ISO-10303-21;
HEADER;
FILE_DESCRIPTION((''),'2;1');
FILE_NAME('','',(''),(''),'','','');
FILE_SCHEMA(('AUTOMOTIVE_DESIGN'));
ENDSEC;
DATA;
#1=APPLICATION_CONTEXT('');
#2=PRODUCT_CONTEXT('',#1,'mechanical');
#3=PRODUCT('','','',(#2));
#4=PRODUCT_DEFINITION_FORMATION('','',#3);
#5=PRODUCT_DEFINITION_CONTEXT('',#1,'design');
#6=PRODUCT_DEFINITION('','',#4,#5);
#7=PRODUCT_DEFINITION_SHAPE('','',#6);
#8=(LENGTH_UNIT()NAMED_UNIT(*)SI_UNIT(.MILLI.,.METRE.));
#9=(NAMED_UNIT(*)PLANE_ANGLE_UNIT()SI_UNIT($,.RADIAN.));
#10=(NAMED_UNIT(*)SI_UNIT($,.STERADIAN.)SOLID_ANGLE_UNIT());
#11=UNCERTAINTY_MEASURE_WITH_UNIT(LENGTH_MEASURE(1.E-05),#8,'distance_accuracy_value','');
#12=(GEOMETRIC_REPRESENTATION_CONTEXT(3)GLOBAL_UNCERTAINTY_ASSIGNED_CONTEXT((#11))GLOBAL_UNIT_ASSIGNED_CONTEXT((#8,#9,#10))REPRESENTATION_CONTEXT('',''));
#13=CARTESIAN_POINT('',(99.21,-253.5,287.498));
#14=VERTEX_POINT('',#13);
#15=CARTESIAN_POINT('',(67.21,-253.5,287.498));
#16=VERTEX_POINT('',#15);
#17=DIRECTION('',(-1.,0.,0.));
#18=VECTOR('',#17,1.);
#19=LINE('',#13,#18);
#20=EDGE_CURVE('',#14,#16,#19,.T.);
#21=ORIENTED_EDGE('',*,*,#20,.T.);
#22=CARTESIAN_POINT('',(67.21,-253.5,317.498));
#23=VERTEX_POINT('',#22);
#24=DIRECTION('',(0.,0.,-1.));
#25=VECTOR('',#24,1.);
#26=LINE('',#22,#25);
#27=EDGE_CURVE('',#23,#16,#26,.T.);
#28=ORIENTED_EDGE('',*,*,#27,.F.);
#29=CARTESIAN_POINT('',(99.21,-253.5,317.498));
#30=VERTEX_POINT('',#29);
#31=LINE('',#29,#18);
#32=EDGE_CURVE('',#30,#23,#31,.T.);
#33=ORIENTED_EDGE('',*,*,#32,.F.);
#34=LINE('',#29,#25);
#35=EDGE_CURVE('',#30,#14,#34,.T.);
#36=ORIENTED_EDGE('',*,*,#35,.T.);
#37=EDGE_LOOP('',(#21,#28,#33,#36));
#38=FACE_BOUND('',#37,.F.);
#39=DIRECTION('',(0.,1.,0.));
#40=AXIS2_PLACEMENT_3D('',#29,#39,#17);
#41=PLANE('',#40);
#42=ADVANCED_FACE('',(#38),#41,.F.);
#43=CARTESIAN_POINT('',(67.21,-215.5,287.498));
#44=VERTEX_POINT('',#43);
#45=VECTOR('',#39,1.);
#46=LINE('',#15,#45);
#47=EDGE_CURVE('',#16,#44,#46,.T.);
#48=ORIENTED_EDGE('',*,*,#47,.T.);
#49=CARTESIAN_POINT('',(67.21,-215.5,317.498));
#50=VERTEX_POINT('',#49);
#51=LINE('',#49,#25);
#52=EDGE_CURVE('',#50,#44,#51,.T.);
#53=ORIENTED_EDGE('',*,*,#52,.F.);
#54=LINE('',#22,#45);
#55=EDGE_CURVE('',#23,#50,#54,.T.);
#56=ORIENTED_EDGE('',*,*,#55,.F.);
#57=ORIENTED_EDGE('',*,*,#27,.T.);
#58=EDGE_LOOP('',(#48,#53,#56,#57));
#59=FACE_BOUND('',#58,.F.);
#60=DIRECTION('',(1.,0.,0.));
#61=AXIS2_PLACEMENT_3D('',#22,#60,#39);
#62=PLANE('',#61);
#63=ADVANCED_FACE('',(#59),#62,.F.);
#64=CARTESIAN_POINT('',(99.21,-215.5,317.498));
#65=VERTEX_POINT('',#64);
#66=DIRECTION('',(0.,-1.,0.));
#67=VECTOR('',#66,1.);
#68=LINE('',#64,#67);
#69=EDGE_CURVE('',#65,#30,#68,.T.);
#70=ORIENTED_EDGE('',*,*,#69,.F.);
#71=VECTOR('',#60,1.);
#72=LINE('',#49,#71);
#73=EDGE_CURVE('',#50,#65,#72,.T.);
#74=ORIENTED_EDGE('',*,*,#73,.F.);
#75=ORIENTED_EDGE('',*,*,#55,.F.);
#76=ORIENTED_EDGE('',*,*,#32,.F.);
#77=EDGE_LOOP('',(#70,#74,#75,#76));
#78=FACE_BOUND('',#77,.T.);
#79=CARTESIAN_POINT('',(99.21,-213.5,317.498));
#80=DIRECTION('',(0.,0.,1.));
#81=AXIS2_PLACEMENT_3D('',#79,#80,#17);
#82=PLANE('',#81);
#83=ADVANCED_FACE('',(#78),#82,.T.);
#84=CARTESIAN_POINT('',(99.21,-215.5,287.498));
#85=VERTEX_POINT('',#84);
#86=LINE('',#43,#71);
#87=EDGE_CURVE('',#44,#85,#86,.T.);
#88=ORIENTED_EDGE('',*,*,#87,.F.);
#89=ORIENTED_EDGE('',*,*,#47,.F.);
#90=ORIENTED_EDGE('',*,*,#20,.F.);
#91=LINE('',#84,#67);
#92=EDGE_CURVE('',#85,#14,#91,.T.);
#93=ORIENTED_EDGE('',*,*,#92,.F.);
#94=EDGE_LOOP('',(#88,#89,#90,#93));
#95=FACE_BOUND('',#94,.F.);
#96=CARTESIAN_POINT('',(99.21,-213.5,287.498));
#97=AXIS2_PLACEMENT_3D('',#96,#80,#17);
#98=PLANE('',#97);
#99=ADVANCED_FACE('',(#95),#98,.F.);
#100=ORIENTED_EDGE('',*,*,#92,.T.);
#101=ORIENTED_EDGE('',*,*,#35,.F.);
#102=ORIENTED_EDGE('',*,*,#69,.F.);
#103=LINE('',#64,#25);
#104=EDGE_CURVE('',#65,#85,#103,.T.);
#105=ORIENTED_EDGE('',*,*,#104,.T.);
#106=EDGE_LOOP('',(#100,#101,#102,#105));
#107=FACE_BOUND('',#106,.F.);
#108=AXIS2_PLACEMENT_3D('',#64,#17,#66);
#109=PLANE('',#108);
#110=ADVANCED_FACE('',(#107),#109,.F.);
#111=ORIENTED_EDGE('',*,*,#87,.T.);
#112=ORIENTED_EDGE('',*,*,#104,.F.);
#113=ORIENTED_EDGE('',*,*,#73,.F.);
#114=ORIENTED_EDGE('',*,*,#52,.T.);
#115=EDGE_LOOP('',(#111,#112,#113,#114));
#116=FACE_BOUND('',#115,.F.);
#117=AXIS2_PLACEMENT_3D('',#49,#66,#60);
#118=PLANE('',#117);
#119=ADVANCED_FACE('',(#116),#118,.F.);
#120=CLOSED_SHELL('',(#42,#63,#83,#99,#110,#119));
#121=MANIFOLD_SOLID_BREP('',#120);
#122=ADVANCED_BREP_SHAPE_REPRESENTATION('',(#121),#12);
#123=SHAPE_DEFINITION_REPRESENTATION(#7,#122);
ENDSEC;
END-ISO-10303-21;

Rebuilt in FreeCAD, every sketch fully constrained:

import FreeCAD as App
import Part
import Sketcher
Q = App.Units.Quantity


def add_polygon(sketch, points):
    """Adds a closed chain of lines whose ends are joined by coincident constraints."""
    first, n = sketch.GeometryCount, len(points)
    for a, b in zip(points, points[1:] + points[:1]):
        sketch.addGeometry(Part.LineSegment(App.Vector(*a, 0), App.Vector(*b, 0)), False)
    for i in range(n):
        sketch.addConstraint(Sketcher.Constraint("Coincident", first + i, 2, first + (i + 1) % n, 1))

doc = App.newDocument("Part")
body = doc.addObject("PartDesign::Body", "Body")

sketch1 = doc.addObject("Sketcher::SketchObject", "Sketch")
body.addObject(sketch1)
sketch1.AttachmentSupport = (doc.XY_Plane, [""])
sketch1.MapMode = "FlatFace"
sketch1.AttachmentOffset = App.Placement(App.Vector(0, 0, 317.498), App.Rotation())
add_polygon(sketch1, [(67.21, -253.5), (99.21, -253.5), (99.21, -215.5), (67.21, -215.5)])
sketch1.addConstraint([
    Sketcher.Constraint("Horizontal", 0),
    Sketcher.Constraint("Vertical", 1),
    Sketcher.Constraint("Horizontal", 2),
    Sketcher.Constraint("Vertical", 3),
    Sketcher.Constraint("DistanceX", 0, 1, 0, 2, Q("32 mm")),
    Sketcher.Constraint("DistanceY", 1, 1, 1, 2, Q("38 mm")),
    Sketcher.Constraint("DistanceY", 0, 2, -1, 1, Q("253.5 mm")),
    Sketcher.Constraint("DistanceX", -1, 1, 0, 2, Q("99.21 mm")),
])
pad1 = doc.addObject("PartDesign::Pad", "Pad")
body.addObject(pad1)
pad1.Profile = sketch1
pad1.Length = 30
pad1.Reversed = True

doc.recompute()
